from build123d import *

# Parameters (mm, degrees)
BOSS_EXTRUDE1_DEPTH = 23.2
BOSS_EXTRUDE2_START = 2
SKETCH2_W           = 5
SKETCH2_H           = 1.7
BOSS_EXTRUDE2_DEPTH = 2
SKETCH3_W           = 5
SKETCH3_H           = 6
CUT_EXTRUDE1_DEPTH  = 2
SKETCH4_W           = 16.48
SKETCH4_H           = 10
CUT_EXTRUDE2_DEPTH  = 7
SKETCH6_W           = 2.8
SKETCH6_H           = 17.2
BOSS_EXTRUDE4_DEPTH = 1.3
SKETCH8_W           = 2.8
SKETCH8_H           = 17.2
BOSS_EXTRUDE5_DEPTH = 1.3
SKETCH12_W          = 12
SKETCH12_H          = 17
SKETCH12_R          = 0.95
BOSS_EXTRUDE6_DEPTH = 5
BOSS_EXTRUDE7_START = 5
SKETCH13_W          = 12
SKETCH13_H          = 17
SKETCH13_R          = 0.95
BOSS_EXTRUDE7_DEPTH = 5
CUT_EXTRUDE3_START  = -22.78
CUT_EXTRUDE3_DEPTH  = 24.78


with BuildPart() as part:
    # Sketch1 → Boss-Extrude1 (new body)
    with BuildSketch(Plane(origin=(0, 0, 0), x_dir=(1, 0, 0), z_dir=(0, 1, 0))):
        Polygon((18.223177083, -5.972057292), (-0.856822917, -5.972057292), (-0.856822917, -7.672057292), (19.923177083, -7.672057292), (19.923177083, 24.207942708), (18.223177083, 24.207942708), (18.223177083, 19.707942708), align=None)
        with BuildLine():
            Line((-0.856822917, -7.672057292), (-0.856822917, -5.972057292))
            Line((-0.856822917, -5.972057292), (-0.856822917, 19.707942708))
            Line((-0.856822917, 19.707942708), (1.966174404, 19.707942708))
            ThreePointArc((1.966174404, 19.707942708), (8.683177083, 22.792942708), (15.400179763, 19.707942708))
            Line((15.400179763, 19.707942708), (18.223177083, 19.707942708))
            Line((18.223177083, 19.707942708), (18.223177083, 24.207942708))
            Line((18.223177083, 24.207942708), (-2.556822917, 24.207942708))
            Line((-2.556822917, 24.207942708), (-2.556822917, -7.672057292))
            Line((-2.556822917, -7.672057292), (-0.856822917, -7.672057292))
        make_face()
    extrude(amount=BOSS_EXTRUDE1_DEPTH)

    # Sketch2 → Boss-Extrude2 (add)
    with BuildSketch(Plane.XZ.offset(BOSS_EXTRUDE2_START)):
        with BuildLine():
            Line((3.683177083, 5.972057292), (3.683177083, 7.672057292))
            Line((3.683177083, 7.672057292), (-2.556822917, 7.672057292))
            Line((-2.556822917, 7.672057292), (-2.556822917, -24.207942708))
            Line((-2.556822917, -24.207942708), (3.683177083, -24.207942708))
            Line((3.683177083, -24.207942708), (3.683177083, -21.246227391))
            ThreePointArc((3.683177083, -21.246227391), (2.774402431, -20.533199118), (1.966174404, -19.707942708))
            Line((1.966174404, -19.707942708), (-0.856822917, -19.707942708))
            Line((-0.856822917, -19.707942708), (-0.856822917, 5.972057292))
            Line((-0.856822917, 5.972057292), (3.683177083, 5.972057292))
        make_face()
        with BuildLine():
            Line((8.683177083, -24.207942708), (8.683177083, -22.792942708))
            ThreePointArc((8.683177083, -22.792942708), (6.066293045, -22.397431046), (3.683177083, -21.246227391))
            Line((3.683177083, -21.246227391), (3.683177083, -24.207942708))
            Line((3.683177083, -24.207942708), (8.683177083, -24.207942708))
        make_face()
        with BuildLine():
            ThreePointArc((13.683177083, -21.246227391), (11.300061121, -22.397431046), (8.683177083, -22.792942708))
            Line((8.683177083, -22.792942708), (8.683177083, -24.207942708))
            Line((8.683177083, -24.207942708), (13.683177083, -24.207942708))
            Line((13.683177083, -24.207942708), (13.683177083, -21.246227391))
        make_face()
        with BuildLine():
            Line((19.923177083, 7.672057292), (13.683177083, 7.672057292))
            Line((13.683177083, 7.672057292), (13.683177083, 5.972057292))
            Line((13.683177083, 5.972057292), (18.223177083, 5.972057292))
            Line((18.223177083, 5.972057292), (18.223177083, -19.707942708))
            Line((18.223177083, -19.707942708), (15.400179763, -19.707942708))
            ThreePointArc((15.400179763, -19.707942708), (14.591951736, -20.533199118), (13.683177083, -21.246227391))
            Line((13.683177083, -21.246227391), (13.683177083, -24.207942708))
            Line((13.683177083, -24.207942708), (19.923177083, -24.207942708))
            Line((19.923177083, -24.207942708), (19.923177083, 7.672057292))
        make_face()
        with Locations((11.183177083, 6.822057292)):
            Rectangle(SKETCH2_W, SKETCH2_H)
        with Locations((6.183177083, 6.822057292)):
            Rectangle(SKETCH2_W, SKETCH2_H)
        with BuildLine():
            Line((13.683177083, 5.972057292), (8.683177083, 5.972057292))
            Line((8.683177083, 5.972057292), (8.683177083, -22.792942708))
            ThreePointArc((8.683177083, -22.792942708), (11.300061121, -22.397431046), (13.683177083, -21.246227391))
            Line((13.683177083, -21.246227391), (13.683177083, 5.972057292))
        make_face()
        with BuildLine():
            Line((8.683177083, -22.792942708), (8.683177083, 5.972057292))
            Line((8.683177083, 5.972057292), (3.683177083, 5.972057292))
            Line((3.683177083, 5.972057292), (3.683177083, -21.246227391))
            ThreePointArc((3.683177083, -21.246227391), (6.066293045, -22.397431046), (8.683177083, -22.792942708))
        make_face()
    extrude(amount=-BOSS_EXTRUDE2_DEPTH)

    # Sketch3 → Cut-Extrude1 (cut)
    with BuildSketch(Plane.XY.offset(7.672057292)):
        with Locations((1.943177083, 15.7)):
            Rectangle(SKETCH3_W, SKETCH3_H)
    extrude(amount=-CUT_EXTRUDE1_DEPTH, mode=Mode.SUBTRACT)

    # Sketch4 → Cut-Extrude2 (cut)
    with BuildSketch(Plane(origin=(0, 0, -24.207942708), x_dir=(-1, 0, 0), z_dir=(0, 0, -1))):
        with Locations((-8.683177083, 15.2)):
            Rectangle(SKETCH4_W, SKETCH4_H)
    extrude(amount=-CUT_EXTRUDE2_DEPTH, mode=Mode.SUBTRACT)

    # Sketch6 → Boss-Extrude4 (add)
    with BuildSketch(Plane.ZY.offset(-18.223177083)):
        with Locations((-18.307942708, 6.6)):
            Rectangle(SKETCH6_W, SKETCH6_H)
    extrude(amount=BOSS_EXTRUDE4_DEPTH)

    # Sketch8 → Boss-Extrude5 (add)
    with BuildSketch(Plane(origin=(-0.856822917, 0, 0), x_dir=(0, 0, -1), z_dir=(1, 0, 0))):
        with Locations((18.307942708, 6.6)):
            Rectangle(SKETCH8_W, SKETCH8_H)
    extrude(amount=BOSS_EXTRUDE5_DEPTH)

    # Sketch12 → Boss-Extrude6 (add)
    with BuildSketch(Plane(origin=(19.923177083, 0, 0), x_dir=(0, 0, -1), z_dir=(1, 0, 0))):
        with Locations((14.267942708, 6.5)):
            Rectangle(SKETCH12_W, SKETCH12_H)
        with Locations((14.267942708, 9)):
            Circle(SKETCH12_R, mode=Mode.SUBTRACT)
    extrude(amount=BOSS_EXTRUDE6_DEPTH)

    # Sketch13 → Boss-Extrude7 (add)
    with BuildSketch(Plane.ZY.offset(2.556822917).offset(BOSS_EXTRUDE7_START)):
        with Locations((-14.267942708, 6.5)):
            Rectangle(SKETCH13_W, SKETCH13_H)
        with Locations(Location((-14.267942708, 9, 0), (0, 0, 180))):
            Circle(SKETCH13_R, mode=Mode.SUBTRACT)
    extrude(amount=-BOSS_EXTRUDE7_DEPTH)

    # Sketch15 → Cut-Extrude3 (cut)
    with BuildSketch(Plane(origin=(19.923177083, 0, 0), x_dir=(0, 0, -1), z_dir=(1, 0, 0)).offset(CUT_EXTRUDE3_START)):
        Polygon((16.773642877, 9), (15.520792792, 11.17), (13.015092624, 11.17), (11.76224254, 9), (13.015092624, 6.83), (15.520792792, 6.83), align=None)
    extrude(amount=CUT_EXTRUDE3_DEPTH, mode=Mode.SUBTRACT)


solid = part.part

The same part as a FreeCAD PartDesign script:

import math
import FreeCAD as App
import Part
import Sketcher
Q = App.Units.Quantity


def add_polygon(sketch, points):
    """Adds a closed chain of lines whose ends are joined by coincident constraints."""
    first, n = sketch.GeometryCount, len(points)
    for a, b in zip(points, points[1:] + points[:1]):
        sketch.addGeometry(Part.LineSegment(App.Vector(*a, 0), App.Vector(*b, 0)), False)
    for i in range(n):
        sketch.addConstraint(Sketcher.Constraint("Coincident", first + i, 2, first + (i + 1) % n, 1))

doc = App.newDocument("Part")
body = doc.addObject("PartDesign::Body", "Body")

sketch1 = body.newObject("Sketcher::SketchObject", "Sketch")
sketch1.AttachmentSupport = (doc.getObject("XZ_Plane"), [""])
sketch1.MapMode = "FlatFace"
add_polygon(sketch1, [(19.923177, 7.672057), (19.923177, -24.207943), (-2.556823, -24.207943), (-2.556823, 7.672057)])
sketch1.addGeometry(Part.LineSegment(App.Vector(18.223177, 5.972057, 0), App.Vector(-0.856823, 5.972057, 0)), False)
sketch1.addGeometry(Part.LineSegment(App.Vector(-0.856823, 5.972057, 0), App.Vector(-0.856823, -19.707943, 0)), False)
sketch1.addGeometry(Part.LineSegment(App.Vector(-0.856823, -19.707943, 0), App.Vector(1.966174, -19.707943, 0)), False)
sketch1.addGeometry(Part.ArcOfCircle(Part.Circle(App.Vector(8.683177, -13.937943, 0), App.Vector(0, 0, 1), 8.855), math.radians(-139.336957), math.radians(-40.663043)), False)
sketch1.addGeometry(Part.LineSegment(App.Vector(15.40018, -19.707943, 0), App.Vector(18.223177, -19.707943, 0)), False)
sketch1.addGeometry(Part.LineSegment(App.Vector(18.223177, -19.707943, 0), App.Vector(18.223177, 5.972057, 0)), False)
sketch1.addConstraint([
    Sketcher.Constraint("Coincident", 4, 2, 5, 1),
    Sketcher.Constraint("Coincident", 5, 2, 6, 1),
    Sketcher.Constraint("Coincident", 6, 2, 7, 1),
    Sketcher.Constraint("Coincident", 7, 2, 8, 1),
    Sketcher.Constraint("Coincident", 8, 2, 9, 1),
    Sketcher.Constraint("Coincident", 9, 2, 4, 1),
    Sketcher.Constraint("Vertical", 0),
    Sketcher.Constraint("Horizontal", 1),
    Sketcher.Constraint("Vertical", 2),
    Sketcher.Constraint("Horizontal", 3),
    Sketcher.Constraint("Horizontal", 4),
    Sketcher.Constraint("Vertical", 5),
    Sketcher.Constraint("Horizontal", 6),
    Sketcher.Constraint("Horizontal", 8),
    Sketcher.Constraint("Vertical", 9),
    Sketcher.Constraint("Horizontal", 6, 2, 7, 2),
    Sketcher.Constraint("Equal", 6, 8),
    Sketcher.Constraint("Radius", 7, Q("8.855 mm")),
    Sketcher.Constraint("DistanceX", 1, 2, 1, 1, Q("22.48 mm")),
    Sketcher.Constraint("DistanceX", 4, 2, 4, 1, Q("19.08 mm")),
    Sketcher.Constraint("DistanceY", 0, 2, 0, 1, Q("31.88 mm")),
    Sketcher.Constraint("DistanceY", 5, 2, 5, 1, Q("25.68 mm")),
    Sketcher.Constraint("DistanceX", 2, 2, 4, 2, Q("1.7 mm")),
    Sketcher.Constraint("DistanceY", 4, 2, 2, 2, Q("1.7 mm")),
    Sketcher.Constraint("DistanceY", 0, 2, 7, 3, Q("10.27 mm")),
    Sketcher.Constraint("DistanceX", -1, 1, 7, 2, Q("15.40018 mm")),
    Sketcher.Constraint("DistanceY", 7, 3, -1, 1, Q("13.937943 mm")),
])
pad1 = body.newObject("PartDesign::Pad", "Pad")
pad1.Profile = sketch1
pad1.Length = 23.2
pad1.Reversed = True

sketch2 = body.newObject("Sketcher::SketchObject", "Sketch001")
sketch2.AttachmentSupport = (doc.getObject("XZ_Plane"), [""])
sketch2.MapMode = "FlatFace"
sketch2.AttachmentOffset = App.Placement(App.Vector(0, 0, 2), App.Rotation())
add_polygon(sketch2, [(-2.556823, 7.672057), (-2.556823, -24.207943), (19.923177, -24.207943), (19.923177, 7.672057)])
sketch2.addGeometry(Part.LineSegment(App.Vector(18.223177, 5.972057, 0), App.Vector(18.223177, -19.707943, 0)), False)
sketch2.addGeometry(Part.LineSegment(App.Vector(18.223177, -19.707943, 0), App.Vector(15.40018, -19.707943, 0)), False)
sketch2.addGeometry(Part.ArcOfCircle(Part.Circle(App.Vector(8.683177, -13.937943, 0), App.Vector(0, 0, 1), 8.855), math.radians(-55.62182), math.radians(-40.663043)), False)
sketch2.addGeometry(Part.LineSegment(App.Vector(13.683177, -21.246227, 0), App.Vector(13.683177, 5.972057, 0)), False)
sketch2.addGeometry(Part.LineSegment(App.Vector(13.683177, 5.972057, 0), App.Vector(18.223177, 5.972057, 0)), False)
sketch2.addGeometry(Part.ArcOfCircle(Part.Circle(App.Vector(8.683177, -13.937943, 0), App.Vector(0, 0, 1), 8.855), math.radians(-139.336957), math.radians(-124.37818)), False)
sketch2.addGeometry(Part.LineSegment(App.Vector(1.966174, -19.707943, 0), App.Vector(-0.856823, -19.707943, 0)), False)
sketch2.addGeometry(Part.LineSegment(App.Vector(-0.856823, -19.707943, 0), App.Vector(-0.856823, 5.972057, 0)), False)
sketch2.addGeometry(Part.LineSegment(App.Vector(-0.856823, 5.972057, 0), App.Vector(3.683177, 5.972057, 0)), False)
sketch2.addGeometry(Part.LineSegment(App.Vector(3.683177, 5.972057, 0), App.Vector(3.683177, -21.246227, 0)), False)
sketch2.addConstraint([
    Sketcher.Constraint("Coincident", 4, 2, 5, 1),
    Sketcher.Constraint("Coincident", 5, 2, 6, 2),
    Sketcher.Constraint("Coincident", 6, 1, 7, 1),
    Sketcher.Constraint("Coincident", 7, 2, 8, 1),
    Sketcher.Constraint("Coincident", 8, 2, 4, 1),
    Sketcher.Constraint("Coincident", 9, 1, 10, 1),
    Sketcher.Constraint("Coincident", 10, 2, 11, 1),
    Sketcher.Constraint("Coincident", 11, 2, 12, 1),
    Sketcher.Constraint("Coincident", 12, 2, 13, 1),
    Sketcher.Constraint("Coincident", 13, 2, 9, 2),
    Sketcher.Constraint("Vertical", 0),
    Sketcher.Constraint("Horizontal", 1),
    Sketcher.Constraint("Vertical", 2),
    Sketcher.Constraint("Horizontal", 3),
    Sketcher.Constraint("Vertical", 4),
    Sketcher.Constraint("Horizontal", 5),
    Sketcher.Constraint("Vertical", 7),
    Sketcher.Constraint("Horizontal", 8),
    Sketcher.Constraint("Horizontal", 10),
    Sketcher.Constraint("Vertical", 11),
    Sketcher.Constraint("Horizontal", 12),
    Sketcher.Constraint("Vertical", 13),
    Sketcher.Constraint("Coincident", 9, 3, 6, 3),
    Sketcher.Constraint("Equal", 6, 9),
    Sketcher.Constraint("Horizontal", 5, 2, 9, 1),
    Sketcher.Constraint("Horizontal", 8, 2, 11, 2),
    Sketcher.Constraint("Horizontal", 6, 1, 13, 2),
    Sketcher.Constraint("Equal", 5, 10),
    Sketcher.Constraint("Radius", 6, Q("8.855 mm")),
    Sketcher.Constraint("DistanceX", 6, 3, 6, 1, Q("5 mm")),
    Sketcher.Constraint("DistanceX", 1, 1, 1, 2, Q("22.48 mm")),
    Sketcher.Constraint("DistanceX", 8, 1, 8, 2, Q("4.54 mm")),
    Sketcher.Constraint("DistanceY", 0, 2, 0, 1, Q("31.88 mm")),
    Sketcher.Constraint("DistanceY", 4, 2, 4, 1, Q("25.68 mm")),
    Sketcher.Constraint("DistanceX", 4, 2, 1, 2, Q("1.7 mm")),
    Sketcher.Constraint("DistanceY", 1, 2, 4, 2, Q("4.5 mm")),
    Sketcher.Constraint("DistanceY", 0, 2, 9, 3, Q("10.27 mm")),
    Sketcher.Constraint("DistanceX", -1, 1, 5, 2, Q("15.40018 mm")),
    Sketcher.Constraint("DistanceY", 6, 3, -1, 1, Q("13.937943 mm")),
])
pad2 = body.newObject("PartDesign::Pad", "Pad001")
pad2.Profile = sketch2
pad2.Length = 2
pad2.Reversed = True

sketch3 = body.newObject("Sketcher::SketchObject", "Sketch002")
sketch3.AttachmentSupport = (doc.getObject("XY_Plane"), [""])
sketch3.MapMode = "FlatFace"
sketch3.AttachmentOffset = App.Placement(App.Vector(0, 0, 7.672057), App.Rotation())
add_polygon(sketch3, [(-0.556823, 18.7), (-0.556823, 12.7), (4.443177, 12.7), (4.443177, 18.7)])
sketch3.addConstraint([
    Sketcher.Constraint("Vertical", 0),
    Sketcher.Constraint("Horizontal", 1),
    Sketcher.Constraint("Vertical", 2),
    Sketcher.Constraint("Horizontal", 3),
    Sketcher.Constraint("DistanceX", 1, 1, 1, 2, Q("5 mm")),
    Sketcher.Constraint("DistanceY", 0, 2, 0, 1, Q("6 mm")),
    Sketcher.Constraint("DistanceY", -1, 1, 0, 2, Q("12.7 mm")),
    Sketcher.Constraint("DistanceX", 0, 2, -1, 1, Q("0.556823 mm")),
])
pocket1 = body.newObject("PartDesign::Pocket", "Pocket")
pocket1.Profile = sketch3
pocket1.Length = 2

sketch4 = body.newObject("Sketcher::SketchObject", "Sketch003")
sketch4.AttachmentSupport = (doc.getObject("XY_Plane"), [""])
sketch4.MapMode = "FlatFace"
sketch4.AttachmentOffset = App.Placement(App.Vector(0, 0, -24.207943), App.Rotation())
add_polygon(sketch4, [(16.923177, 20.2), (16.923177, 10.2), (0.443177, 10.2), (0.443177, 20.2)])
sketch4.addConstraint([
    Sketcher.Constraint("Vertical", 0),
    Sketcher.Constraint("Horizontal", 1),
    Sketcher.Constraint("Vertical", 2),
    Sketcher.Constraint("Horizontal", 3),
    Sketcher.Constraint("DistanceY", 0, 2, 0, 1, Q("10 mm")),
    Sketcher.Constraint("DistanceX", 1, 2, 1, 1, Q("16.48 mm")),
    Sketcher.Constraint("DistanceY", -1, 1, 0, 2, Q("10.2 mm")),
    Sketcher.Constraint("DistanceX", -1, 1, 0, 2, Q("16.923177 mm")),
])
pocket2 = body.newObject("PartDesign::Pocket", "Pocket001")
pocket2.Profile = sketch4
pocket2.Length = 7
pocket2.Reversed = True

sketch5 = body.newObject("Sketcher::SketchObject", "Sketch004")
sketch5.AttachmentSupport = (doc.getObject("YZ_Plane"), [""])
sketch5.MapMode = "FlatFace"
sketch5.AttachmentOffset = App.Placement(App.Vector(0, 0, 18.223177), App.Rotation())
add_polygon(sketch5, [(15.2, -19.707943), (-2, -19.707943), (-2, -16.907943), (15.2, -16.907943)])
sketch5.addConstraint([
    Sketcher.Constraint("Horizontal", 0),
    Sketcher.Constraint("Vertical", 1),
    Sketcher.Constraint("Horizontal", 2),
    Sketcher.Constraint("Vertical", 3),
    Sketcher.Constraint("DistanceX", 0, 2, 0, 1, Q("17.2 mm")),
    Sketcher.Constraint("DistanceY", 1, 1, 1, 2, Q("2.8 mm")),
    Sketcher.Constraint("DistanceX", 0, 2, -1, 1, Q("2 mm")),
    Sketcher.Constraint("DistanceY", 0, 2, -1, 1, Q("19.707943 mm")),
])
pad3 = body.newObject("PartDesign::Pad", "Pad002")
pad3.Profile = sketch5
pad3.Length = 1.3
pad3.Reversed = True

sketch6 = body.newObject("Sketcher::SketchObject", "Sketch005")
sketch6.AttachmentSupport = (doc.getObject("YZ_Plane"), [""])
sketch6.MapMode = "FlatFace"
sketch6.AttachmentOffset = App.Placement(App.Vector(0, 0, -0.856823), App.Rotation())
add_polygon(sketch6, [(15.2, -16.907943), (-2, -16.907943), (-2, -19.707943), (15.2, -19.707943)])
sketch6.addConstraint([
    Sketcher.Constraint("Horizontal", 0),
    Sketcher.Constraint("Vertical", 1),
    Sketcher.Constraint("Horizontal", 2),
    Sketcher.Constraint("Vertical", 3),
    Sketcher.Constraint("DistanceX", 0, 2, 0, 1, Q("17.2 mm")),
    Sketcher.Constraint("DistanceY", 1, 2, 1, 1, Q("2.8 mm")),
    Sketcher.Constraint("DistanceX", 0, 2, -1, 1, Q("2 mm")),
    Sketcher.Constraint("DistanceY", 0, 2, -1, 1, Q("16.907943 mm")),
])
pad4 = body.newObject("PartDesign::Pad", "Pad003")
pad4.Profile = sketch6
pad4.Length = 1.3

sketch7 = body.newObject("Sketcher::SketchObject", "Sketch006")
sketch7.AttachmentSupport = (doc.getObject("YZ_Plane"), [""])
sketch7.MapMode = "FlatFace"
sketch7.AttachmentOffset = App.Placement(App.Vector(0, 0, 19.923177), App.Rotation())
add_polygon(sketch7, [(15, -8.267943), (-2, -8.267943), (-2, -20.267943), (15, -20.267943)])
sketch7.addGeometry(Part.Circle(App.Vector(9, -14.267943, 0), App.Vector(0, 0, 1), 0.95), False)
sketch7.addConstraint([
    Sketcher.Constraint("Horizontal", 0),
    Sketcher.Constraint("Vertical", 1),
    Sketcher.Constraint("Horizontal", 2),
    Sketcher.Constraint("Vertical", 3),
    Sketcher.Constraint("Diameter", 4, Q("1.9 mm")),
    Sketcher.Constraint("DistanceX", 0, 2, 0, 1, Q("17 mm")),
    Sketcher.Constraint("DistanceY", 1, 2, 1, 1, Q("12 mm")),
    Sketcher.Constraint("DistanceX", -1, 1, 4, 3, Q("9 mm")),
    Sketcher.Constraint("DistanceX", 0, 2, -1, 1, Q("2 mm")),
    Sketcher.Constraint("DistanceY", 4, 3, 0, 2, Q("6 mm")),
    Sketcher.Constraint("DistanceY", 4, 3, -1, 1, Q("14.267943 mm")),
])
pad5 = body.newObject("PartDesign::Pad", "Pad004")
pad5.Profile = sketch7
pad5.Length = 5

sketch8 = body.newObject("Sketcher::SketchObject", "Sketch007")
sketch8.AttachmentSupport = (doc.getObject("YZ_Plane"), [""])
sketch8.MapMode = "FlatFace"
sketch8.AttachmentOffset = App.Placement(App.Vector(0, 0, -7.556823), App.Rotation())
add_polygon(sketch8, [(15, -20.267943), (-2, -20.267943), (-2, -8.267943), (15, -8.267943)])
sketch8.addGeometry(Part.Circle(App.Vector(9, -14.267943, 0), App.Vector(0, 0, 1), 0.95), False)
sketch8.addConstraint([
    Sketcher.Constraint("Horizontal", 0),
    Sketcher.Constraint("Vertical", 1),
    Sketcher.Constraint("Horizontal", 2),
    Sketcher.Constraint("Vertical", 3),
    Sketcher.Constraint("Diameter", 4, Q("1.9 mm")),
    Sketcher.Constraint("DistanceX", 0, 2, 0, 1, Q("17 mm")),
    Sketcher.Constraint("DistanceY", 1, 1, 1, 2, Q("12 mm")),
    Sketcher.Constraint("DistanceX", -1, 1, 4, 3, Q("9 mm")),
    Sketcher.Constraint("DistanceX", 0, 2, -1, 1, Q("2 mm")),
    Sketcher.Constraint("DistanceY", 0, 2, 4, 3, Q("6 mm")),
    Sketcher.Constraint("DistanceY", 4, 3, -1, 1, Q("14.267943 mm")),
])
pad6 = body.newObject("PartDesign::Pad", "Pad005")
pad6.Profile = sketch8
pad6.Length = 5

sketch9 = body.newObject("Sketcher::SketchObject", "Sketch008")
sketch9.AttachmentSupport = (doc.getObject("YZ_Plane"), [""])
sketch9.MapMode = "FlatFace"
sketch9.AttachmentOffset = App.Placement(App.Vector(0, 0, -2.856823), App.Rotation())
add_polygon(sketch9, [(9, -16.773643), (11.17, -15.520793), (11.17, -13.015093), (9, -11.762243), (6.83, -13.015093), (6.83, -15.520793)])
sketch9.addConstraint([
    Sketcher.Constraint("Vertical", 1),
    Sketcher.Constraint("Vertical", 4),
    Sketcher.Constraint("Parallel", 0, 3),
    Sketcher.Constraint("Parallel", 2, 5),
    Sketcher.Constraint("Horizontal", 1, 2, 3, 2),
    Sketcher.Constraint("Horizontal", 0, 2, 4, 2),
    Sketcher.Constraint("Vertical", 2, 2, 5, 2),
    Sketcher.Constraint("Angle", 0, Q("30 deg")),
    Sketcher.Constraint("DistanceX", -1, 1, 2, 2, Q("9 mm")),
    Sketcher.Constraint("DistanceX", -1, 1, 0, 2, Q("11.17 mm")),
    Sketcher.Constraint("DistanceY", 1, 1, 1, 2, Q("2.5057 mm")),
    Sketcher.Constraint("DistanceY", 0, 2, -1, 1, Q("15.520793 mm")),
])
pocket3 = body.newObject("PartDesign::Pocket", "Pocket002")
pocket3.Profile = sketch9
pocket3.Length = 24.78
pocket3.Reversed = True

doc.recompute()
